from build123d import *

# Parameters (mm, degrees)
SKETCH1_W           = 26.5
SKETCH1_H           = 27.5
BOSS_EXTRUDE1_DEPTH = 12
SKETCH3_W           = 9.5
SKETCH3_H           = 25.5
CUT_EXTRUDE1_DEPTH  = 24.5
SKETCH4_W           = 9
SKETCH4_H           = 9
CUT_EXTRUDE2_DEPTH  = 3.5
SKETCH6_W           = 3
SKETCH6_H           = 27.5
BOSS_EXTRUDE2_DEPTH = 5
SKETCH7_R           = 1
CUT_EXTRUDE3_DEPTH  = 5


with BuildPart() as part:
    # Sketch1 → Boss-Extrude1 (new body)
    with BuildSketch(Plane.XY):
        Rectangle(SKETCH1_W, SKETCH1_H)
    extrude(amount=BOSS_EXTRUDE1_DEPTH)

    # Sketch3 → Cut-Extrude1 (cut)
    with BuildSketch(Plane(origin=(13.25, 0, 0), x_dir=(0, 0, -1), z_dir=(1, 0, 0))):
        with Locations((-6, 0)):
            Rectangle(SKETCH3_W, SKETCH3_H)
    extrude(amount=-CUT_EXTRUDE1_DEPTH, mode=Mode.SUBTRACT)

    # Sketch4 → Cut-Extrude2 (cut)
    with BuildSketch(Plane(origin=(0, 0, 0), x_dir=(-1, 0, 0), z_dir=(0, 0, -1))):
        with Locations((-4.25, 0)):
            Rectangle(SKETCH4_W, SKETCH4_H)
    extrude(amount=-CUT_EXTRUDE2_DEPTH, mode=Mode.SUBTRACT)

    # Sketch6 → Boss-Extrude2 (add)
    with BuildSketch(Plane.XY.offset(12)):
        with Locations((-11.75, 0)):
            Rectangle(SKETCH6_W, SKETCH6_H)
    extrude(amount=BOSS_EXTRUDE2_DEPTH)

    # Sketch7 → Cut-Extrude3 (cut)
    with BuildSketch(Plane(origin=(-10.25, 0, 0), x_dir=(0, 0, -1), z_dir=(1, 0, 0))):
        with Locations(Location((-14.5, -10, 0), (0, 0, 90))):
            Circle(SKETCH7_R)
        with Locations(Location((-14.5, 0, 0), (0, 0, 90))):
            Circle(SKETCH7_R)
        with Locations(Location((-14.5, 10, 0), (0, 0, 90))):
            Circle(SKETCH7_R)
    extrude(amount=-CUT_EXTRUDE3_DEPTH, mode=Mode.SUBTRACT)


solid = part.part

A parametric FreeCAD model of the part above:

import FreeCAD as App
import Part
import Sketcher

V = App.Vector
Q = App.Units.Quantity

doc = App.newDocument("Part")
body = doc.addObject("PartDesign::Body", "Body")

# Sketch on XY plane
sketch1 = body.newObject("Sketcher::SketchObject", "Sketch")
sketch1.AttachmentSupport = (doc.getObject("XY_Plane"), [""])
sketch1.MapMode = "FlatFace"
sketch1.addGeometry([
    Part.LineSegment(V(-13, 14, 0), V(-13, -14, 0)),
    Part.LineSegment(V(-13, -14, 0), V(13, -14, 0)),
    Part.LineSegment(V(13, -14, 0), V(13, 14, 0)),
    Part.LineSegment(V(13, 14, 0), V(-13, 14, 0)),
], False)
sketch1.addConstraint([
    Sketcher.Constraint("Coincident", 0, 2, 1, 1),
    Sketcher.Constraint("Coincident", 1, 2, 2, 1),
    Sketcher.Constraint("Coincident", 2, 2, 3, 1),
    Sketcher.Constraint("Coincident", 3, 2, 0, 1),
    Sketcher.Constraint("Vertical", 0),
    Sketcher.Constraint("Horizontal", 1),
    Sketcher.Constraint("Vertical", 2),
    Sketcher.Constraint("Horizontal", 3),
    Sketcher.Constraint("Symmetric", 0, 2, 2, 2, -1, 1),
    Sketcher.Constraint("DistanceX", 1, 1, 1, 2, Q("26.5 mm")),
    Sketcher.Constraint("DistanceY", 0, 2, 0, 1, Q("27.5 mm")),
])
pad1 = body.newObject("PartDesign::Pad", "Pad")
pad1.Profile = sketch1
pad1.Length = 12

# Sketch on YZ plane
sketch2 = body.newObject("Sketcher::SketchObject", "Sketch001")
sketch2.AttachmentSupport = (doc.getObject("YZ_Plane"), [""])
sketch2.MapMode = "FlatFace"
sketch2.AttachmentOffset = App.Placement(V(0, 0, 13.25), App.Rotation())
sketch2.addGeometry([
    Part.LineSegment(V(13, 11, 0), V(-13, 11, 0)),
    Part.LineSegment(V(-13, 11, 0), V(-13, 1, 0)),
    Part.LineSegment(V(-13, 1, 0), V(13, 1, 0)),
    Part.LineSegment(V(13, 1, 0), V(13, 11, 0)),
], False)
sketch2.addConstraint([
    Sketcher.Constraint("Coincident", 0, 2, 1, 1),
    Sketcher.Constraint("Coincident", 1, 2, 2, 1),
    Sketcher.Constraint("Coincident", 2, 2, 3, 1),
    Sketcher.Constraint("Coincident", 3, 2, 0, 1),
    Sketcher.Constraint("Horizontal", 0),
    Sketcher.Constraint("Vertical", 1),
    Sketcher.Constraint("Horizontal", 2),
    Sketcher.Constraint("Vertical", 3),
    Sketcher.Constraint("DistanceX", 0, 2, 0, 1, Q("25.5 mm")),
    Sketcher.Constraint("DistanceY", 1, 2, 1, 1, Q("9.5 mm")),
    Sketcher.Constraint("DistanceX", 0, 2, -1, 1, Q("12.75 mm")),
    Sketcher.Constraint("DistanceY", -1, 1, 0, 2, Q("10.75 mm")),
])
pocket1 = body.newObject("PartDesign::Pocket", "Pocket")
pocket1.Profile = sketch2
pocket1.Length = 24.5

# Sketch on XY plane
sketch3 = body.newObject("Sketcher::SketchObject", "Sketch002")
sketch3.AttachmentSupport = (doc.getObject("XY_Plane"), [""])
sketch3.MapMode = "FlatFace"
sketch3.addGeometry([
    Part.LineSegment(V(9, 4, 0), V(9, -4, 0)),
    Part.LineSegment(V(9, -4, 0), V(0, -4, 0)),
    Part.LineSegment(V(0, -4, 0), V(0, 4, 0)),
    Part.LineSegment(V(0, 4, 0), V(9, 4, 0)),
], False)
sketch3.addConstraint([
    Sketcher.Constraint("Coincident", 0, 2, 1, 1),
    Sketcher.Constraint("Coincident", 1, 2, 2, 1),
    Sketcher.Constraint("Coincident", 2, 2, 3, 1),
    Sketcher.Constraint("Coincident", 3, 2, 0, 1),
    Sketcher.Constraint("Vertical", 0),
    Sketcher.Constraint("Horizontal", 1),
    Sketcher.Constraint("Vertical", 2),
    Sketcher.Constraint("Horizontal", 3),
    Sketcher.Constraint("Equal", 3, 0),
    Sketcher.Constraint("DistanceX", 1, 2, 1, 1, Q("9 mm")),
    Sketcher.Constraint("DistanceY", 0, 2, -1, 1, Q("4.5 mm")),
    Sketcher.Constraint("DistanceX", -1, 1, 0, 2, Q("8.75 mm")),
])
pocket2 = body.newObject("PartDesign::Pocket", "Pocket001")
pocket2.Profile = sketch3
pocket2.Length = 3.5
pocket2.Reversed = True

# Sketch on XY plane
sketch4 = body.newObject("Sketcher::SketchObject", "Sketch003")
sketch4.AttachmentSupport = (doc.getObject("XY_Plane"), [""])
sketch4.MapMode = "FlatFace"
sketch4.AttachmentOffset = App.Placement(V(0, 0, 12), App.Rotation())
sketch4.addGeometry([
    Part.LineSegment(V(-13.2, 13.8, 0), V(-13.2, -13.8, 0)),
    Part.LineSegment(V(-13.2, -13.8, 0), V(-10.2, -13.8, 0)),
    Part.LineSegment(V(-10.2, -13.8, 0), V(-10.2, 13.8, 0)),
    Part.LineSegment(V(-10.2, 13.8, 0), V(-13.2, 13.8, 0)),
], False)
sketch4.addConstraint([
    Sketcher.Constraint("Coincident", 0, 2, 1, 1),
    Sketcher.Constraint("Coincident", 1, 2, 2, 1),
    Sketcher.Constraint("Coincident", 2, 2, 3, 1),
    Sketcher.Constraint("Coincident", 3, 2, 0, 1),
    Sketcher.Constraint("Vertical", 0),
    Sketcher.Constraint("Horizontal", 1),
    Sketcher.Constraint("Vertical", 2),
    Sketcher.Constraint("Horizontal", 3),
    Sketcher.Constraint("DistanceX", 1, 1, 1, 2, Q("3 mm")),
    Sketcher.Constraint("DistanceY", 0, 2, 0, 1, Q("27.5 mm")),
    Sketcher.Constraint("DistanceX", 0, 2, -1, 1, Q("13.25 mm")),
    Sketcher.Constraint("DistanceY", 0, 2, -1, 1, Q("13.75 mm")),
])
pad2 = body.newObject("PartDesign::Pad", "Pad001")
pad2.Profile = sketch4
pad2.Length = 5

# Sketch on YZ plane
sketch5 = body.newObject("Sketcher::SketchObject", "Sketch004")
sketch5.AttachmentSupport = (doc.getObject("YZ_Plane"), [""])
sketch5.MapMode = "FlatFace"
sketch5.AttachmentOffset = App.Placement(V(0, 0, -10.25), App.Rotation())
sketch5.addGeometry([
    Part.Circle(V(-10, 14.5, 0), V(0, 0, 1), 1),
    Part.Circle(V(0, 14.5, 0), V(0, 0, 1), 1),
    Part.Circle(V(10, 14.5, 0), V(0, 0, 1), 1),
], False)
sketch5.addConstraint([
    Sketcher.Constraint("Equal", 0, 1),
    Sketcher.Constraint("Equal", 1, 2),
    Sketcher.Constraint("Symmetric", 0, 3, 2, 3, -2),
    Sketcher.Constraint("PointOnObject", 1, 3, -2),
    Sketcher.Constraint("Horizontal", 0, 3, 1, 3),
    Sketcher.Constraint("Diameter", 0, Q("2 mm")),
    Sketcher.Constraint("DistanceX", 0, 3, -1, 1, Q("10 mm")),
    Sketcher.Constraint("DistanceY", -1, 1, 0, 3, Q("14.5 mm")),
])
pocket3 = body.newObject("PartDesign::Pocket", "Pocket002")
pocket3.Profile = sketch5
pocket3.Length = 5

doc.recompute()
